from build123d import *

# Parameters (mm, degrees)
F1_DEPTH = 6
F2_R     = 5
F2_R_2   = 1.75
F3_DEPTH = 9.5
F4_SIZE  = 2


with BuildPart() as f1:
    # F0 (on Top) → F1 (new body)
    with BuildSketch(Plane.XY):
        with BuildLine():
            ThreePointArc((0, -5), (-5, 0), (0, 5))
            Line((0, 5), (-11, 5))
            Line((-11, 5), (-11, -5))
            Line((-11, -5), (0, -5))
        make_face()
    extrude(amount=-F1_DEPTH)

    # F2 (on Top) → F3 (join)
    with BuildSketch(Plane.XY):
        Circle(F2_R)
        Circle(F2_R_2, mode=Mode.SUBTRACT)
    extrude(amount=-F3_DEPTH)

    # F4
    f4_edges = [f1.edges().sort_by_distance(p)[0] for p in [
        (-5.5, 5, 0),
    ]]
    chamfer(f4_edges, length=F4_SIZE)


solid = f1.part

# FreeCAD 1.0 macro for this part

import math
import FreeCAD as App
import Part
import Sketcher
Q = App.Units.Quantity


def edges_at(feature, points):
    """Names of the edges that pass closest to the given points."""
    edges = feature.Shape.Edges
    near = lambda p: min(range(len(edges)), key=lambda i: edges[i].distToShape(Part.Vertex(*p))[0])
    return sorted({f"Edge{near(p) + 1}" for p in points})

doc = App.newDocument("Part")
params = doc.addObject("Spreadsheet::Sheet", "Params")
for row, (alias, value) in enumerate([
    ("sketch1_radius", "5 mm"),
    ("sketch1_width", "11 mm"),
    ("pad1_length", "6 mm"),
    ("sketch2_diameter", "10 mm"),
    ("sketch2_diameter2", "3.5 mm"),
    ("pad2_length", "9.5 mm"),
    ("chamfer_size", "2 mm"),
], start=1):
    params.set(f"A{row}", alias)
    params.set(f"B{row}", "=" + value)
    params.setAlias(f"B{row}", alias)

body = doc.addObject("PartDesign::Body", "Body")

# Sketch on XY plane
sketch1 = doc.addObject("Sketcher::SketchObject", "Sketch")
body.addObject(sketch1)
sketch1.AttachmentSupport = (doc.XY_Plane, [""])
sketch1.MapMode = "FlatFace"
sketch1.addGeometry(Part.ArcOfCircle(Part.Circle(App.Vector(0, 0, 0), App.Vector(0, 0, 1), 5), math.radians(90), math.radians(270)), False)
sketch1.addGeometry(Part.LineSegment(App.Vector(0, 5, 0), App.Vector(-11, 5, 0)), False)
sketch1.addGeometry(Part.LineSegment(App.Vector(-11, 5, 0), App.Vector(-11, -5, 0)), False)
sketch1.addGeometry(Part.LineSegment(App.Vector(-11, -5, 0), App.Vector(0, -5, 0)), False)
sketch1.addConstraint(Sketcher.Constraint("Tangent", 0, 1, 1, 1))
sketch1.addConstraint(Sketcher.Constraint("Coincident", 1, 2, 2, 1))
sketch1.addConstraint(Sketcher.Constraint("Coincident", 2, 2, 3, 1))
sketch1.addConstraint(Sketcher.Constraint("Tangent", 3, 2, 0, 2))
sketch1.addConstraint(Sketcher.Constraint("Horizontal", 1))
sketch1.addConstraint(Sketcher.Constraint("Vertical", 2))
sketch1.addConstraint(Sketcher.Constraint("Horizontal", 3))
sketch1.addConstraint(Sketcher.Constraint("Coincident", 0, 3, -1, 1))
sketch1.addConstraint(Sketcher.Constraint("Radius", 0, Q("5 mm")))
sketch1.addConstraint(Sketcher.Constraint("DistanceX", 1, 2, 1, 1, Q("11 mm")))
sketch1.setExpression("Constraints[8]", "Params.sketch1_radius")
sketch1.setExpression("Constraints[9]", "Params.sketch1_width")
pad1 = doc.addObject("PartDesign::Pad", "Pad")
body.addObject(pad1)
pad1.Profile = sketch1
pad1.setExpression("Length", "Params.pad1_length")
pad1.Reversed = True

# Sketch on XY plane
sketch2 = doc.addObject("Sketcher::SketchObject", "Sketch001")
body.addObject(sketch2)
sketch2.AttachmentSupport = (doc.XY_Plane, [""])
sketch2.MapMode = "FlatFace"
sketch2.addGeometry(Part.Circle(App.Vector(0, 0, 0), App.Vector(0, 0, 1), 5), False)
sketch2.addGeometry(Part.Circle(App.Vector(0, 0, 0), App.Vector(0, 0, 1), 1.8), False)
sketch2.addConstraint(Sketcher.Constraint("Coincident", 0, 3, -1, 1))
sketch2.addConstraint(Sketcher.Constraint("Coincident", 1, 3, -1, 1))
sketch2.addConstraint(Sketcher.Constraint("Diameter", 0, Q("10 mm")))
sketch2.addConstraint(Sketcher.Constraint("Diameter", 1, Q("3.5 mm")))
sketch2.setExpression("Constraints[2]", "Params.sketch2_diameter")
sketch2.setExpression("Constraints[3]", "Params.sketch2_diameter2")
pad2 = doc.addObject("PartDesign::Pad", "Pad001")
body.addObject(pad2)
pad2.Profile = sketch2
pad2.setExpression("Length", "Params.pad2_length")
pad2.Reversed = True
doc.recompute()

chamfer = doc.addObject("PartDesign::Chamfer", "Chamfer")
body.addObject(chamfer)
chamfer.Base = (pad2, edges_at(pad2, [(-5.5, 5, 0)]))
chamfer.setExpression("Size", "Params.chamfer_size")

doc.recompute()
